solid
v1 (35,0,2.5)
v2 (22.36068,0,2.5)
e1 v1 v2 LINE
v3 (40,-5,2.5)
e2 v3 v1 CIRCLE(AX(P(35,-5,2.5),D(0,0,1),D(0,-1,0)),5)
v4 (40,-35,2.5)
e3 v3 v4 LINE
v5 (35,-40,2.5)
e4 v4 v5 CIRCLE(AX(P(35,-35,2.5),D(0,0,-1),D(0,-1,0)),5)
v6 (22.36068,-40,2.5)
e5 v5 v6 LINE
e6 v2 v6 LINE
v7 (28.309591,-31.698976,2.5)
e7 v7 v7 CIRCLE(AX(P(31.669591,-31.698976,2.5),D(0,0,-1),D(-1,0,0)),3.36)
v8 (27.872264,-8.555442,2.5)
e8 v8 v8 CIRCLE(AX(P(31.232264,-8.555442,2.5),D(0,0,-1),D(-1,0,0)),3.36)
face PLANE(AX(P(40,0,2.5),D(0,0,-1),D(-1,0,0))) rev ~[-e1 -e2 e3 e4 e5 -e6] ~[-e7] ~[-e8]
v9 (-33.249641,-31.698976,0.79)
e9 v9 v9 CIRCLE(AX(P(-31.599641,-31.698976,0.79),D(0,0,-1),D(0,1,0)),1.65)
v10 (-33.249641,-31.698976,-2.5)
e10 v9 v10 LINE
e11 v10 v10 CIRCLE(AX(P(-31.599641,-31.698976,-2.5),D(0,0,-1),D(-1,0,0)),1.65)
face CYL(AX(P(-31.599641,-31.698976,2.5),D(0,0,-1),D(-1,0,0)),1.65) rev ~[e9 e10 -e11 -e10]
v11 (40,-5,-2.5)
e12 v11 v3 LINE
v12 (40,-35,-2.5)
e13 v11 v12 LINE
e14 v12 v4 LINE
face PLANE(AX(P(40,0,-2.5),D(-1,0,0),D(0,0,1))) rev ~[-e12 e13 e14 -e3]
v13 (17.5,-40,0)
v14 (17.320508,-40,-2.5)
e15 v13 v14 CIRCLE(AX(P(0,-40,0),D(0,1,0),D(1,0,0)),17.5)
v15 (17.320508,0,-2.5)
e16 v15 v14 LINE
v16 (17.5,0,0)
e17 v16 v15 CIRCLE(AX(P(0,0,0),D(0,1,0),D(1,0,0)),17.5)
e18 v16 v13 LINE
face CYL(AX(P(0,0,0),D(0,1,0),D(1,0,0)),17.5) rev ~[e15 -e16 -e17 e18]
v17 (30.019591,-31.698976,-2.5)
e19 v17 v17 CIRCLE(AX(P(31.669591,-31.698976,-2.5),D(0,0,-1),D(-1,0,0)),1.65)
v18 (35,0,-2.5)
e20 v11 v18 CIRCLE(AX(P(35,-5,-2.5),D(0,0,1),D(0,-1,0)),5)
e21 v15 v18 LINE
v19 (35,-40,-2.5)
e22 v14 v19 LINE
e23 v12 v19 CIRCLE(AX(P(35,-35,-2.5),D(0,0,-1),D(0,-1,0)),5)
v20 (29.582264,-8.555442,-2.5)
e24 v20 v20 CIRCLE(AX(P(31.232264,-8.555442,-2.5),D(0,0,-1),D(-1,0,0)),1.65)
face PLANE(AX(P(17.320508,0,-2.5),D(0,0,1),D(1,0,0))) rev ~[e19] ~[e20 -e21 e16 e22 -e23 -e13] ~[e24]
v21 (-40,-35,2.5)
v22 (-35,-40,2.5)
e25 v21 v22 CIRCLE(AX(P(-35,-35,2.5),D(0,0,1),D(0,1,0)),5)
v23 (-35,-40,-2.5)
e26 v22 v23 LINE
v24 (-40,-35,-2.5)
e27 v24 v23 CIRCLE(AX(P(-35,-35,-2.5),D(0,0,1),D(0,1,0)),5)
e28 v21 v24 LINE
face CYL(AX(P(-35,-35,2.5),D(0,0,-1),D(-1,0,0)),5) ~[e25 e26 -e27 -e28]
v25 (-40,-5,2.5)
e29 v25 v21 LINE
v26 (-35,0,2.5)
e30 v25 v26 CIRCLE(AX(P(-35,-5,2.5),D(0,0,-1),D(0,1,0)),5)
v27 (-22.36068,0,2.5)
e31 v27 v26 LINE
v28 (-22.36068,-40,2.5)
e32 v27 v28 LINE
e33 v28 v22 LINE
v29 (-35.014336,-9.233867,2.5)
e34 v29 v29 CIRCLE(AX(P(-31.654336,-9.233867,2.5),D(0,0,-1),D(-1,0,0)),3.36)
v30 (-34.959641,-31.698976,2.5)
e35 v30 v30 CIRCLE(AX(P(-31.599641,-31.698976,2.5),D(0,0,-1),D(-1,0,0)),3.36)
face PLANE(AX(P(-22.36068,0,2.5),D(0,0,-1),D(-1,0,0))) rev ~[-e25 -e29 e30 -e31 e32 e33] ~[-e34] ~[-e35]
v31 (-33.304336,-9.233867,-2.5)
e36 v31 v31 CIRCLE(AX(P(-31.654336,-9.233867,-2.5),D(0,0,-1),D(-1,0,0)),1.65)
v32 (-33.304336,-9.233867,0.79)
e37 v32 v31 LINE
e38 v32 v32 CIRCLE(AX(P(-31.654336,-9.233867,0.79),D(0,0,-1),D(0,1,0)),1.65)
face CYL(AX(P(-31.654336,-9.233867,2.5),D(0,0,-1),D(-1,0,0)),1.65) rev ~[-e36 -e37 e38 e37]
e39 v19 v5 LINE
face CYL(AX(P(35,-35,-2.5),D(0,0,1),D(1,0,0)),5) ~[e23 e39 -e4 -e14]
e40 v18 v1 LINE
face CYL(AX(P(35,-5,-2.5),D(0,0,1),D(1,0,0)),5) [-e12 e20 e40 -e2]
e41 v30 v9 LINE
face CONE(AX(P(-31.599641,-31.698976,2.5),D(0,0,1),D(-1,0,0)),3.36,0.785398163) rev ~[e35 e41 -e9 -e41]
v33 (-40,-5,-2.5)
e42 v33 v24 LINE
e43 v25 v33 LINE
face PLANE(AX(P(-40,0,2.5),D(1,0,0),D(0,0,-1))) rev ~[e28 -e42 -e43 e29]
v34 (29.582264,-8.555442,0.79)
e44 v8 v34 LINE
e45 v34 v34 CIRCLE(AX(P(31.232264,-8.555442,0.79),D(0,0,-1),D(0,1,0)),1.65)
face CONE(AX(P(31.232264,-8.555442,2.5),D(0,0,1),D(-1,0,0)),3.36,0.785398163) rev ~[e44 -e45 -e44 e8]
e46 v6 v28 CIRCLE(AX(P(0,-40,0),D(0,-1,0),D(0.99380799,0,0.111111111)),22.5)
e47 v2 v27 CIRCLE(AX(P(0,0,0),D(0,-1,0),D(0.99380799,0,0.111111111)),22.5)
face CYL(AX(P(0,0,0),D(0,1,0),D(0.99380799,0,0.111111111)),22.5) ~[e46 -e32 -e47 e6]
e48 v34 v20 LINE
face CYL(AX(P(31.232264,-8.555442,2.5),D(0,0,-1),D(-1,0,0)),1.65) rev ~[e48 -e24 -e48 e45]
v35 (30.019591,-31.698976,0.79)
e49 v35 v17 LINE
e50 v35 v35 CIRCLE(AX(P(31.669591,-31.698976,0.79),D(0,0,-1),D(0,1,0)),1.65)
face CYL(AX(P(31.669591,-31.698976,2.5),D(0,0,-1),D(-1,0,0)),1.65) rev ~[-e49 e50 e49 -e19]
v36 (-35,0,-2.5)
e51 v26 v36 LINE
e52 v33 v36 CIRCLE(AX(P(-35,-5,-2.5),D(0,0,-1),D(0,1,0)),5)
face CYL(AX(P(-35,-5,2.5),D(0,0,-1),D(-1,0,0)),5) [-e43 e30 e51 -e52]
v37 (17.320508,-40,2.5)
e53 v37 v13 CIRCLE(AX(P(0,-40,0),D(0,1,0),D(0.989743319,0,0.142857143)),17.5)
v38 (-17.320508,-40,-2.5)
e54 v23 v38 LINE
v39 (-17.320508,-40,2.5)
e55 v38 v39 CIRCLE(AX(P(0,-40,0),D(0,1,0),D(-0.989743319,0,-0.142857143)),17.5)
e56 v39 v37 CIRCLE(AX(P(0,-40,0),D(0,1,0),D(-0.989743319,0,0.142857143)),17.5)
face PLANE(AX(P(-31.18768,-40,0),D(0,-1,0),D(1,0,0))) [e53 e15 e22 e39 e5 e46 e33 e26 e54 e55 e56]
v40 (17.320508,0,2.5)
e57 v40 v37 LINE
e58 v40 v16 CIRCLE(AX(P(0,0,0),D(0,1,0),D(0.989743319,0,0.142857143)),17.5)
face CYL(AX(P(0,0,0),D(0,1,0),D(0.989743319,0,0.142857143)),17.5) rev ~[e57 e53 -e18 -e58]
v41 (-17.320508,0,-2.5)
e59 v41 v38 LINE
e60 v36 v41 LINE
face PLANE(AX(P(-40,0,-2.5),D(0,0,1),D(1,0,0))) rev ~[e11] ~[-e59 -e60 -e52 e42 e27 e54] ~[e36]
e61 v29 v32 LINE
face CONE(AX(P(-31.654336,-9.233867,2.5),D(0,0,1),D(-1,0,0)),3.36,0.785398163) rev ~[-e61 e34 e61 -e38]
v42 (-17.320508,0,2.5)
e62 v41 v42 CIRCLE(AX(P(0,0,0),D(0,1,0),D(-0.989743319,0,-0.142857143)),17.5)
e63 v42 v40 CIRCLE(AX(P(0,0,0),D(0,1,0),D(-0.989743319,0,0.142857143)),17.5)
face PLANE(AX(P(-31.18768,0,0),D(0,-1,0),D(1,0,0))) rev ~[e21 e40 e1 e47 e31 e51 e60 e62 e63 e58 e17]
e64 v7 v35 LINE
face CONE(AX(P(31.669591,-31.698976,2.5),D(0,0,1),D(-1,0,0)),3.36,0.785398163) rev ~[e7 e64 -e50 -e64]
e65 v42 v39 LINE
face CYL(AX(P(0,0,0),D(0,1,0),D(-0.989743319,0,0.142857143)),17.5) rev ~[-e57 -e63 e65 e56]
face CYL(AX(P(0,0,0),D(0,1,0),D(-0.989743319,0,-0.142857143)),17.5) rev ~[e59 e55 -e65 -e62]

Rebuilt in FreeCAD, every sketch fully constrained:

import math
import FreeCAD as App
import Part
import Sketcher

V = App.Vector
Q = App.Units.Quantity


def edges_at(feature, points):
    """Names of the edges that pass closest to the given points."""
    edges = feature.Shape.Edges
    near = lambda p: min(range(len(edges)), key=lambda i: edges[i].distToShape(Part.Vertex(*p))[0])
    return sorted({f"Edge{near(p) + 1}" for p in points})

doc = App.newDocument("Part")
body = doc.addObject("PartDesign::Body", "Body")

# Sketch on XZ plane
sketch1 = body.newObject("Sketcher::SketchObject", "Sketch")
sketch1.AttachmentSupport = (doc.getObject("XZ_Plane"), [""])
sketch1.MapMode = "FlatFace"
sketch1.addGeometry([
    Part.LineSegment(V(-40, -2.5, 0), V(-17.3, -2.5, 0)),  # 0
    Part.ArcOfCircle(Part.Circle(V(0, 0, 0), V(0, 0, 1), 17.5), math.radians(171.79), math.radians(188.21)),  # 1
    Part.ArcOfCircle(Part.Circle(V(0, 0, 0), V(0, 0, 1), 17.5), math.radians(8), math.radians(172)),  # 2
    Part.ArcOfCircle(Part.Circle(V(0, 0, 0), V(0, 0, 1), 17.5), math.radians(0), math.radians(8.21)),  # 3
    Part.ArcOfCircle(Part.Circle(V(0, 0, 0), V(0, 0, 1), 17.5), math.radians(-8.21), math.radians(0)),  # 4
    Part.LineSegment(V(17.3, -2.5, 0), V(40, -2.5, 0)),  # 5
    Part.LineSegment(V(40, -2.5, 0), V(40, 2.5, 0)),  # 6
    Part.LineSegment(V(40, 2.5, 0), V(22.4, 2.5, 0)),  # 7
    Part.ArcOfCircle(Part.Circle(V(0, 0, 0), V(0, 0, 1), 22.5), math.radians(6), math.radians(174)),  # 8
    Part.LineSegment(V(-22.4, 2.5, 0), V(-40, 2.5, 0)),  # 9
    Part.LineSegment(V(-40, 2.5, 0), V(-40, -2.5, 0)),  # 10
], False)
sketch1.addConstraint([
    Sketcher.Constraint("Coincident", 0, 2, 1, 2),
    Sketcher.Constraint("Tangent", 1, 1, 2, 2),
    Sketcher.Constraint("Tangent", 2, 1, 3, 2),
    Sketcher.Constraint("Tangent", 3, 1, 4, 2),
    Sketcher.Constraint("Coincident", 4, 1, 5, 1),
    Sketcher.Constraint("Coincident", 5, 2, 6, 1),
    Sketcher.Constraint("Coincident", 6, 2, 7, 1),
    Sketcher.Constraint("Coincident", 7, 2, 8, 1),
    Sketcher.Constraint("Coincident", 8, 2, 9, 1),
    Sketcher.Constraint("Coincident", 9, 2, 10, 1),
    Sketcher.Constraint("Coincident", 10, 2, 0, 1),
    Sketcher.Constraint("Horizontal", 0),
    Sketcher.Constraint("Horizontal", 5),
    Sketcher.Constraint("Vertical", 6),
    Sketcher.Constraint("Horizontal", 7),
    Sketcher.Constraint("Horizontal", 9),
    Sketcher.Constraint("Vertical", 10),
    Sketcher.Constraint("Coincident", 1, 3, -1, 1),
    Sketcher.Constraint("Coincident", 3, 3, -1, 1),
    Sketcher.Constraint("Coincident", 8, 3, -1, 1),
    Sketcher.Constraint("Equal", 3, 4),
    Sketcher.Constraint("Symmetric", 5, 2, 9, 2, -1, 1),
    Sketcher.Constraint("PointOnObject", 3, 1, -1),
    Sketcher.Constraint("Horizontal", 1, 1, 2, 1),
    Sketcher.Constraint("Horizontal", 0, 2, 4, 1),
    Sketcher.Constraint("Horizontal", 2, 1, 6, 2),
    Sketcher.Constraint("Horizontal", 7, 2, 8, 2),
    Sketcher.Constraint("Radius", 1, Q("17.5 mm")),
    Sketcher.Constraint("Radius", 8, Q("22.5 mm")),
    Sketcher.Constraint("DistanceY", 6, 1, 6, 2, Q("5 mm")),
    Sketcher.Constraint("DistanceX", -1, 1, 5, 2, Q("40 mm")),
])
pad1 = body.newObject("PartDesign::Pad", "Pad")
pad1.Profile = sketch1
pad1.Length = 40
doc.recompute()

fillet = body.newObject("PartDesign::Fillet", "Fillet")
fillet.Base = (pad1, edges_at(pad1, [
    (-40, -40, 0),
    (-40, 0, 0),
    (40, -40, 0),
    (40, 0, 0),
]))
fillet.Radius = 5

# Sketch on XY plane
sketch2 = body.newObject("Sketcher::SketchObject", "Sketch001")
sketch2.AttachmentSupport = (doc.getObject("XY_Plane"), [""])
sketch2.MapMode = "FlatFace"
sketch2.AttachmentOffset = App.Placement(V(0, 0, 2.5), App.Rotation())
sketch2.addGeometry([
    Part.Circle(V(-31.7, -9.2, 0), V(0, 0, 1), 1.6),
    Part.Circle(V(-31.6, -31.7, 0), V(0, 0, 1), 1.6),
    Part.Circle(V(31.2, -8.6, 0), V(0, 0, 1), 1.6),
    Part.Circle(V(31.7, -31.7, 0), V(0, 0, 1), 1.6),
], False)
sketch2.addConstraint([
    Sketcher.Constraint("Equal", 0, 1),
    Sketcher.Constraint("Equal", 1, 2),
    Sketcher.Constraint("Equal", 2, 3),
    Sketcher.Constraint("Horizontal", 1, 3, 3, 3),
    Sketcher.Constraint("Diameter", 0, Q("3.3 mm")),
    Sketcher.Constraint("DistanceX", 0, 3, 2, 3, Q("62.886599 mm")),
    Sketcher.Constraint("DistanceX", 1, 3, -1, 1, Q("31.599641 mm")),
    Sketcher.Constraint("DistanceX", -1, 1, 3, 3, Q("31.669591 mm")),
    Sketcher.Constraint("DistanceY", 1, 3, 0, 3, Q("22.465109 mm")),
    Sketcher.Constraint("DistanceX", 0, 3, -1, 1, Q("31.654336 mm")),
    Sketcher.Constraint("DistanceY", 0, 3, -1, 1, Q("9.233867 mm")),
    Sketcher.Constraint("DistanceY", 2, 3, -1, 1, Q("8.555442 mm")),
])
doc.recompute()
hole = body.newObject("PartDesign::Hole", "Hole")
hole.Profile = sketch2
hole.ThreadType = "None"
hole.Diameter = 3.3
hole.DepthType = "Dimension"
hole.Depth = 13.5
hole.DrillPoint = "Angled"
hole.DrillPointAngle = 118
hole.HoleCutType = "Countersink"
hole.HoleCutDiameter = 6.72
hole.HoleCutCountersinkAngle = 90

doc.recompute()
